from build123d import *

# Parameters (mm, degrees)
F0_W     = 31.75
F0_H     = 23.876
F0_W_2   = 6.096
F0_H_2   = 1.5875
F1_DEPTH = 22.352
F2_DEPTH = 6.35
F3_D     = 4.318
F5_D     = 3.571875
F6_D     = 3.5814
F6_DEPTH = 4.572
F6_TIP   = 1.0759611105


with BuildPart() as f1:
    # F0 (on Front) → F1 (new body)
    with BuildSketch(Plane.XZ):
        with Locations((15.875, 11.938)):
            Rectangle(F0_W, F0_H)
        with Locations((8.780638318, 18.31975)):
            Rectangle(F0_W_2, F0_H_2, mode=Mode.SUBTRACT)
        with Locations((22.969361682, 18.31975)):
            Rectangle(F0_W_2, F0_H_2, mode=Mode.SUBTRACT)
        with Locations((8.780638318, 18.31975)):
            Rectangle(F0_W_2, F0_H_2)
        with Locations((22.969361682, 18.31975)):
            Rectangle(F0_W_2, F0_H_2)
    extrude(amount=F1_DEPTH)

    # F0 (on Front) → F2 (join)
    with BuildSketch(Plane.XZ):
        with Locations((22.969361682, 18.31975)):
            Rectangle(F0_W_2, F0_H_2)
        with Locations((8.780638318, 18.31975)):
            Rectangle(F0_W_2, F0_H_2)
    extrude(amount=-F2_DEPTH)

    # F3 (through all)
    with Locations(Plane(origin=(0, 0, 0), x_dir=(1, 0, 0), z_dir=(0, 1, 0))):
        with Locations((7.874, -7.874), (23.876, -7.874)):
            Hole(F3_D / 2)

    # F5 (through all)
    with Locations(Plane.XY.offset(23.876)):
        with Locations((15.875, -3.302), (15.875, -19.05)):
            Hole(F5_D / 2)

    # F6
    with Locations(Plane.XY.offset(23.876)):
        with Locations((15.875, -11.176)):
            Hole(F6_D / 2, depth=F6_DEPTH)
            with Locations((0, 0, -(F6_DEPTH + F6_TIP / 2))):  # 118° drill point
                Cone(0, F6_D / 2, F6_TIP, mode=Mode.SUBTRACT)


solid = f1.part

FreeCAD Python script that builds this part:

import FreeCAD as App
import Part
import Sketcher
Q = App.Units.Quantity


def add_polygon(sketch, points):
    """Adds a closed chain of lines whose ends are joined by coincident constraints."""
    first, n = sketch.GeometryCount, len(points)
    for a, b in zip(points, points[1:] + points[:1]):
        sketch.addGeometry(Part.LineSegment(App.Vector(*a, 0), App.Vector(*b, 0)), False)
    for i in range(n):
        sketch.addConstraint(Sketcher.Constraint("Coincident", first + i, 2, first + (i + 1) % n, 1))

doc = App.newDocument("Part")
body = doc.addObject("PartDesign::Body", "Body")

sketch1 = body.newObject("Sketcher::SketchObject", "Sketch")
sketch1.AttachmentSupport = (doc.getObject("XZ_Plane"), [""])
sketch1.MapMode = "FlatFace"
add_polygon(sketch1, [(0, 23.876), (0, 0), (31.75, 0), (31.75, 23.876)])
sketch1.addConstraint(Sketcher.Constraint("Vertical", 0))
sketch1.addConstraint(Sketcher.Constraint("Horizontal", 1))
sketch1.addConstraint(Sketcher.Constraint("Vertical", 2))
sketch1.addConstraint(Sketcher.Constraint("Horizontal", 3))
sketch1.addConstraint(Sketcher.Constraint("Coincident", 0, 2, -1, 1))
sketch1.addConstraint(Sketcher.Constraint("DistanceX", 1, 1, 1, 2, Q("1.25 in")))
sketch1.addConstraint(Sketcher.Constraint("DistanceY", 0, 2, 0, 1, Q("0.94 in")))
pad1 = body.newObject("PartDesign::Pad", "Pad")
pad1.Profile = sketch1
pad1.Length = Q("0.88 in")

sketch2 = body.newObject("Sketcher::SketchObject", "Sketch001")
sketch2.AttachmentSupport = (doc.getObject("XZ_Plane"), [""])
sketch2.MapMode = "FlatFace"
add_polygon(sketch2, [(19.921362, 19.1135), (19.921362, 17.526), (26.017362, 17.526), (26.017362, 19.1135)])
add_polygon(sketch2, [(5.732638, 19.1135), (5.732638, 17.526), (11.828638, 17.526), (11.828638, 19.1135)])
sketch2.addConstraint(Sketcher.Constraint("Vertical", 0))
sketch2.addConstraint(Sketcher.Constraint("Horizontal", 1))
sketch2.addConstraint(Sketcher.Constraint("Vertical", 2))
sketch2.addConstraint(Sketcher.Constraint("Horizontal", 3))
sketch2.addConstraint(Sketcher.Constraint("Vertical", 4))
sketch2.addConstraint(Sketcher.Constraint("Horizontal", 5))
sketch2.addConstraint(Sketcher.Constraint("Vertical", 6))
sketch2.addConstraint(Sketcher.Constraint("Horizontal", 7))
sketch2.addConstraint(Sketcher.Constraint("Horizontal", 1, 2, 4, 2))
sketch2.addConstraint(Sketcher.Constraint("Horizontal", 3, 2, 6, 2))
sketch2.addConstraint(Sketcher.Constraint("Equal", 3, 5))
sketch2.addConstraint(Sketcher.Constraint("DistanceX", 1, 1, 1, 2, Q("0.24 in")))
sketch2.addConstraint(Sketcher.Constraint("DistanceY", 0, 2, 0, 1, Q("0.0625 in")))
sketch2.addConstraint(Sketcher.Constraint("DistanceY", -1, 1, 0, 2, Q("0.69 in")))
sketch2.addConstraint(Sketcher.Constraint("DistanceX", -1, 1, 0, 2, Q("19.921362 mm")))
sketch2.addConstraint(Sketcher.Constraint("DistanceX", -1, 1, 4, 2, Q("5.732638 mm")))
pad2 = body.newObject("PartDesign::Pad", "Pad001")
pad2.Profile = sketch2
pad2.Length = Q("0.25 in")
pad2.Reversed = True

sketch3 = body.newObject("Sketcher::SketchObject", "Sketch002")
sketch3.AttachmentSupport = (doc.getObject("XZ_Plane"), [""])
sketch3.MapMode = "FlatFace"
sketch3.addGeometry(Part.Circle(App.Vector(7.874, 7.874, 0), App.Vector(0, 0, 1), 2.159), False)
sketch3.addGeometry(Part.Circle(App.Vector(23.876, 7.874, 0), App.Vector(0, 0, 1), 2.159), False)
sketch3.addConstraint(Sketcher.Constraint("Equal", 0, 1))
sketch3.addConstraint(Sketcher.Constraint("Horizontal", 0, 3, 1, 3))
sketch3.addConstraint(Sketcher.Constraint("Diameter", 0, Q("0.17 in")))
sketch3.addConstraint(Sketcher.Constraint("DistanceX", -1, 1, 0, 3, Q("0.31 in")))
sketch3.addConstraint(Sketcher.Constraint("DistanceY", -1, 1, 0, 3, Q("0.31 in")))
sketch3.addConstraint(Sketcher.Constraint("DistanceX", -1, 1, 1, 3, Q("0.94 in")))
doc.recompute()
hole = body.newObject("PartDesign::Hole", "Hole")
hole.Profile = sketch3
hole.ThreadType = "None"
hole.Diameter = Q("0.17 in")
hole.DepthType = "ThroughAll"
hole.Reversed = True

sketch4 = body.newObject("Sketcher::SketchObject", "Sketch003")
sketch4.AttachmentSupport = (doc.getObject("XY_Plane"), [""])
sketch4.MapMode = "FlatFace"
sketch4.AttachmentOffset = App.Placement(App.Vector(0, 0, 0.94 * 25.4), App.Rotation())
sketch4.addGeometry(Part.Circle(App.Vector(15.875, -3.302, 0), App.Vector(0, 0, 1), 1.785937), False)
sketch4.addGeometry(Part.Circle(App.Vector(15.875, -19.05, 0), App.Vector(0, 0, 1), 1.785937), False)
sketch4.addConstraint(Sketcher.Constraint("Equal", 0, 1))
sketch4.addConstraint(Sketcher.Constraint("Vertical", 0, 3, 1, 3))
sketch4.addConstraint(Sketcher.Constraint("Diameter", 0, Q("0.140625 in")))
sketch4.addConstraint(Sketcher.Constraint("DistanceY", 0, 3, -1, 1, Q("0.13 in")))
sketch4.addConstraint(Sketcher.Constraint("DistanceY", 1, 3, -1, 1, Q("0.75 in")))
sketch4.addConstraint(Sketcher.Constraint("DistanceX", -1, 1, 0, 3, Q("0.625 in")))
doc.recompute()
hole2 = body.newObject("PartDesign::Hole", "Hole001")
hole2.Profile = sketch4
hole2.ThreadType = "None"
hole2.Diameter = Q("0.140625 in")
hole2.DepthType = "ThroughAll"

sketch5 = body.newObject("Sketcher::SketchObject", "Sketch004")
sketch5.AttachmentSupport = (doc.getObject("XY_Plane"), [""])
sketch5.MapMode = "FlatFace"
sketch5.AttachmentOffset = App.Placement(App.Vector(0, 0, 0.94 * 25.4), App.Rotation())
sketch5.addGeometry(Part.Circle(App.Vector(15.875, -11.176, 0), App.Vector(0, 0, 1), 1.7907), False)
sketch5.addConstraint(Sketcher.Constraint("Diameter", 0, Q("0.141 in")))
sketch5.addConstraint(Sketcher.Constraint("DistanceY", 0, 3, -1, 1, Q("0.44 in")))
sketch5.addConstraint(Sketcher.Constraint("DistanceX", -1, 1, 0, 3, Q("0.625 in")))
doc.recompute()
hole3 = body.newObject("PartDesign::Hole", "Hole002")
hole3.Profile = sketch5
hole3.ThreadType = "None"
hole3.Diameter = Q("0.141 in")
hole3.DepthType = "Dimension"
hole3.Depth = Q("0.18 in")
hole3.DrillPoint = "Angled"
hole3.DrillPointAngle = 118

doc.recompute()
